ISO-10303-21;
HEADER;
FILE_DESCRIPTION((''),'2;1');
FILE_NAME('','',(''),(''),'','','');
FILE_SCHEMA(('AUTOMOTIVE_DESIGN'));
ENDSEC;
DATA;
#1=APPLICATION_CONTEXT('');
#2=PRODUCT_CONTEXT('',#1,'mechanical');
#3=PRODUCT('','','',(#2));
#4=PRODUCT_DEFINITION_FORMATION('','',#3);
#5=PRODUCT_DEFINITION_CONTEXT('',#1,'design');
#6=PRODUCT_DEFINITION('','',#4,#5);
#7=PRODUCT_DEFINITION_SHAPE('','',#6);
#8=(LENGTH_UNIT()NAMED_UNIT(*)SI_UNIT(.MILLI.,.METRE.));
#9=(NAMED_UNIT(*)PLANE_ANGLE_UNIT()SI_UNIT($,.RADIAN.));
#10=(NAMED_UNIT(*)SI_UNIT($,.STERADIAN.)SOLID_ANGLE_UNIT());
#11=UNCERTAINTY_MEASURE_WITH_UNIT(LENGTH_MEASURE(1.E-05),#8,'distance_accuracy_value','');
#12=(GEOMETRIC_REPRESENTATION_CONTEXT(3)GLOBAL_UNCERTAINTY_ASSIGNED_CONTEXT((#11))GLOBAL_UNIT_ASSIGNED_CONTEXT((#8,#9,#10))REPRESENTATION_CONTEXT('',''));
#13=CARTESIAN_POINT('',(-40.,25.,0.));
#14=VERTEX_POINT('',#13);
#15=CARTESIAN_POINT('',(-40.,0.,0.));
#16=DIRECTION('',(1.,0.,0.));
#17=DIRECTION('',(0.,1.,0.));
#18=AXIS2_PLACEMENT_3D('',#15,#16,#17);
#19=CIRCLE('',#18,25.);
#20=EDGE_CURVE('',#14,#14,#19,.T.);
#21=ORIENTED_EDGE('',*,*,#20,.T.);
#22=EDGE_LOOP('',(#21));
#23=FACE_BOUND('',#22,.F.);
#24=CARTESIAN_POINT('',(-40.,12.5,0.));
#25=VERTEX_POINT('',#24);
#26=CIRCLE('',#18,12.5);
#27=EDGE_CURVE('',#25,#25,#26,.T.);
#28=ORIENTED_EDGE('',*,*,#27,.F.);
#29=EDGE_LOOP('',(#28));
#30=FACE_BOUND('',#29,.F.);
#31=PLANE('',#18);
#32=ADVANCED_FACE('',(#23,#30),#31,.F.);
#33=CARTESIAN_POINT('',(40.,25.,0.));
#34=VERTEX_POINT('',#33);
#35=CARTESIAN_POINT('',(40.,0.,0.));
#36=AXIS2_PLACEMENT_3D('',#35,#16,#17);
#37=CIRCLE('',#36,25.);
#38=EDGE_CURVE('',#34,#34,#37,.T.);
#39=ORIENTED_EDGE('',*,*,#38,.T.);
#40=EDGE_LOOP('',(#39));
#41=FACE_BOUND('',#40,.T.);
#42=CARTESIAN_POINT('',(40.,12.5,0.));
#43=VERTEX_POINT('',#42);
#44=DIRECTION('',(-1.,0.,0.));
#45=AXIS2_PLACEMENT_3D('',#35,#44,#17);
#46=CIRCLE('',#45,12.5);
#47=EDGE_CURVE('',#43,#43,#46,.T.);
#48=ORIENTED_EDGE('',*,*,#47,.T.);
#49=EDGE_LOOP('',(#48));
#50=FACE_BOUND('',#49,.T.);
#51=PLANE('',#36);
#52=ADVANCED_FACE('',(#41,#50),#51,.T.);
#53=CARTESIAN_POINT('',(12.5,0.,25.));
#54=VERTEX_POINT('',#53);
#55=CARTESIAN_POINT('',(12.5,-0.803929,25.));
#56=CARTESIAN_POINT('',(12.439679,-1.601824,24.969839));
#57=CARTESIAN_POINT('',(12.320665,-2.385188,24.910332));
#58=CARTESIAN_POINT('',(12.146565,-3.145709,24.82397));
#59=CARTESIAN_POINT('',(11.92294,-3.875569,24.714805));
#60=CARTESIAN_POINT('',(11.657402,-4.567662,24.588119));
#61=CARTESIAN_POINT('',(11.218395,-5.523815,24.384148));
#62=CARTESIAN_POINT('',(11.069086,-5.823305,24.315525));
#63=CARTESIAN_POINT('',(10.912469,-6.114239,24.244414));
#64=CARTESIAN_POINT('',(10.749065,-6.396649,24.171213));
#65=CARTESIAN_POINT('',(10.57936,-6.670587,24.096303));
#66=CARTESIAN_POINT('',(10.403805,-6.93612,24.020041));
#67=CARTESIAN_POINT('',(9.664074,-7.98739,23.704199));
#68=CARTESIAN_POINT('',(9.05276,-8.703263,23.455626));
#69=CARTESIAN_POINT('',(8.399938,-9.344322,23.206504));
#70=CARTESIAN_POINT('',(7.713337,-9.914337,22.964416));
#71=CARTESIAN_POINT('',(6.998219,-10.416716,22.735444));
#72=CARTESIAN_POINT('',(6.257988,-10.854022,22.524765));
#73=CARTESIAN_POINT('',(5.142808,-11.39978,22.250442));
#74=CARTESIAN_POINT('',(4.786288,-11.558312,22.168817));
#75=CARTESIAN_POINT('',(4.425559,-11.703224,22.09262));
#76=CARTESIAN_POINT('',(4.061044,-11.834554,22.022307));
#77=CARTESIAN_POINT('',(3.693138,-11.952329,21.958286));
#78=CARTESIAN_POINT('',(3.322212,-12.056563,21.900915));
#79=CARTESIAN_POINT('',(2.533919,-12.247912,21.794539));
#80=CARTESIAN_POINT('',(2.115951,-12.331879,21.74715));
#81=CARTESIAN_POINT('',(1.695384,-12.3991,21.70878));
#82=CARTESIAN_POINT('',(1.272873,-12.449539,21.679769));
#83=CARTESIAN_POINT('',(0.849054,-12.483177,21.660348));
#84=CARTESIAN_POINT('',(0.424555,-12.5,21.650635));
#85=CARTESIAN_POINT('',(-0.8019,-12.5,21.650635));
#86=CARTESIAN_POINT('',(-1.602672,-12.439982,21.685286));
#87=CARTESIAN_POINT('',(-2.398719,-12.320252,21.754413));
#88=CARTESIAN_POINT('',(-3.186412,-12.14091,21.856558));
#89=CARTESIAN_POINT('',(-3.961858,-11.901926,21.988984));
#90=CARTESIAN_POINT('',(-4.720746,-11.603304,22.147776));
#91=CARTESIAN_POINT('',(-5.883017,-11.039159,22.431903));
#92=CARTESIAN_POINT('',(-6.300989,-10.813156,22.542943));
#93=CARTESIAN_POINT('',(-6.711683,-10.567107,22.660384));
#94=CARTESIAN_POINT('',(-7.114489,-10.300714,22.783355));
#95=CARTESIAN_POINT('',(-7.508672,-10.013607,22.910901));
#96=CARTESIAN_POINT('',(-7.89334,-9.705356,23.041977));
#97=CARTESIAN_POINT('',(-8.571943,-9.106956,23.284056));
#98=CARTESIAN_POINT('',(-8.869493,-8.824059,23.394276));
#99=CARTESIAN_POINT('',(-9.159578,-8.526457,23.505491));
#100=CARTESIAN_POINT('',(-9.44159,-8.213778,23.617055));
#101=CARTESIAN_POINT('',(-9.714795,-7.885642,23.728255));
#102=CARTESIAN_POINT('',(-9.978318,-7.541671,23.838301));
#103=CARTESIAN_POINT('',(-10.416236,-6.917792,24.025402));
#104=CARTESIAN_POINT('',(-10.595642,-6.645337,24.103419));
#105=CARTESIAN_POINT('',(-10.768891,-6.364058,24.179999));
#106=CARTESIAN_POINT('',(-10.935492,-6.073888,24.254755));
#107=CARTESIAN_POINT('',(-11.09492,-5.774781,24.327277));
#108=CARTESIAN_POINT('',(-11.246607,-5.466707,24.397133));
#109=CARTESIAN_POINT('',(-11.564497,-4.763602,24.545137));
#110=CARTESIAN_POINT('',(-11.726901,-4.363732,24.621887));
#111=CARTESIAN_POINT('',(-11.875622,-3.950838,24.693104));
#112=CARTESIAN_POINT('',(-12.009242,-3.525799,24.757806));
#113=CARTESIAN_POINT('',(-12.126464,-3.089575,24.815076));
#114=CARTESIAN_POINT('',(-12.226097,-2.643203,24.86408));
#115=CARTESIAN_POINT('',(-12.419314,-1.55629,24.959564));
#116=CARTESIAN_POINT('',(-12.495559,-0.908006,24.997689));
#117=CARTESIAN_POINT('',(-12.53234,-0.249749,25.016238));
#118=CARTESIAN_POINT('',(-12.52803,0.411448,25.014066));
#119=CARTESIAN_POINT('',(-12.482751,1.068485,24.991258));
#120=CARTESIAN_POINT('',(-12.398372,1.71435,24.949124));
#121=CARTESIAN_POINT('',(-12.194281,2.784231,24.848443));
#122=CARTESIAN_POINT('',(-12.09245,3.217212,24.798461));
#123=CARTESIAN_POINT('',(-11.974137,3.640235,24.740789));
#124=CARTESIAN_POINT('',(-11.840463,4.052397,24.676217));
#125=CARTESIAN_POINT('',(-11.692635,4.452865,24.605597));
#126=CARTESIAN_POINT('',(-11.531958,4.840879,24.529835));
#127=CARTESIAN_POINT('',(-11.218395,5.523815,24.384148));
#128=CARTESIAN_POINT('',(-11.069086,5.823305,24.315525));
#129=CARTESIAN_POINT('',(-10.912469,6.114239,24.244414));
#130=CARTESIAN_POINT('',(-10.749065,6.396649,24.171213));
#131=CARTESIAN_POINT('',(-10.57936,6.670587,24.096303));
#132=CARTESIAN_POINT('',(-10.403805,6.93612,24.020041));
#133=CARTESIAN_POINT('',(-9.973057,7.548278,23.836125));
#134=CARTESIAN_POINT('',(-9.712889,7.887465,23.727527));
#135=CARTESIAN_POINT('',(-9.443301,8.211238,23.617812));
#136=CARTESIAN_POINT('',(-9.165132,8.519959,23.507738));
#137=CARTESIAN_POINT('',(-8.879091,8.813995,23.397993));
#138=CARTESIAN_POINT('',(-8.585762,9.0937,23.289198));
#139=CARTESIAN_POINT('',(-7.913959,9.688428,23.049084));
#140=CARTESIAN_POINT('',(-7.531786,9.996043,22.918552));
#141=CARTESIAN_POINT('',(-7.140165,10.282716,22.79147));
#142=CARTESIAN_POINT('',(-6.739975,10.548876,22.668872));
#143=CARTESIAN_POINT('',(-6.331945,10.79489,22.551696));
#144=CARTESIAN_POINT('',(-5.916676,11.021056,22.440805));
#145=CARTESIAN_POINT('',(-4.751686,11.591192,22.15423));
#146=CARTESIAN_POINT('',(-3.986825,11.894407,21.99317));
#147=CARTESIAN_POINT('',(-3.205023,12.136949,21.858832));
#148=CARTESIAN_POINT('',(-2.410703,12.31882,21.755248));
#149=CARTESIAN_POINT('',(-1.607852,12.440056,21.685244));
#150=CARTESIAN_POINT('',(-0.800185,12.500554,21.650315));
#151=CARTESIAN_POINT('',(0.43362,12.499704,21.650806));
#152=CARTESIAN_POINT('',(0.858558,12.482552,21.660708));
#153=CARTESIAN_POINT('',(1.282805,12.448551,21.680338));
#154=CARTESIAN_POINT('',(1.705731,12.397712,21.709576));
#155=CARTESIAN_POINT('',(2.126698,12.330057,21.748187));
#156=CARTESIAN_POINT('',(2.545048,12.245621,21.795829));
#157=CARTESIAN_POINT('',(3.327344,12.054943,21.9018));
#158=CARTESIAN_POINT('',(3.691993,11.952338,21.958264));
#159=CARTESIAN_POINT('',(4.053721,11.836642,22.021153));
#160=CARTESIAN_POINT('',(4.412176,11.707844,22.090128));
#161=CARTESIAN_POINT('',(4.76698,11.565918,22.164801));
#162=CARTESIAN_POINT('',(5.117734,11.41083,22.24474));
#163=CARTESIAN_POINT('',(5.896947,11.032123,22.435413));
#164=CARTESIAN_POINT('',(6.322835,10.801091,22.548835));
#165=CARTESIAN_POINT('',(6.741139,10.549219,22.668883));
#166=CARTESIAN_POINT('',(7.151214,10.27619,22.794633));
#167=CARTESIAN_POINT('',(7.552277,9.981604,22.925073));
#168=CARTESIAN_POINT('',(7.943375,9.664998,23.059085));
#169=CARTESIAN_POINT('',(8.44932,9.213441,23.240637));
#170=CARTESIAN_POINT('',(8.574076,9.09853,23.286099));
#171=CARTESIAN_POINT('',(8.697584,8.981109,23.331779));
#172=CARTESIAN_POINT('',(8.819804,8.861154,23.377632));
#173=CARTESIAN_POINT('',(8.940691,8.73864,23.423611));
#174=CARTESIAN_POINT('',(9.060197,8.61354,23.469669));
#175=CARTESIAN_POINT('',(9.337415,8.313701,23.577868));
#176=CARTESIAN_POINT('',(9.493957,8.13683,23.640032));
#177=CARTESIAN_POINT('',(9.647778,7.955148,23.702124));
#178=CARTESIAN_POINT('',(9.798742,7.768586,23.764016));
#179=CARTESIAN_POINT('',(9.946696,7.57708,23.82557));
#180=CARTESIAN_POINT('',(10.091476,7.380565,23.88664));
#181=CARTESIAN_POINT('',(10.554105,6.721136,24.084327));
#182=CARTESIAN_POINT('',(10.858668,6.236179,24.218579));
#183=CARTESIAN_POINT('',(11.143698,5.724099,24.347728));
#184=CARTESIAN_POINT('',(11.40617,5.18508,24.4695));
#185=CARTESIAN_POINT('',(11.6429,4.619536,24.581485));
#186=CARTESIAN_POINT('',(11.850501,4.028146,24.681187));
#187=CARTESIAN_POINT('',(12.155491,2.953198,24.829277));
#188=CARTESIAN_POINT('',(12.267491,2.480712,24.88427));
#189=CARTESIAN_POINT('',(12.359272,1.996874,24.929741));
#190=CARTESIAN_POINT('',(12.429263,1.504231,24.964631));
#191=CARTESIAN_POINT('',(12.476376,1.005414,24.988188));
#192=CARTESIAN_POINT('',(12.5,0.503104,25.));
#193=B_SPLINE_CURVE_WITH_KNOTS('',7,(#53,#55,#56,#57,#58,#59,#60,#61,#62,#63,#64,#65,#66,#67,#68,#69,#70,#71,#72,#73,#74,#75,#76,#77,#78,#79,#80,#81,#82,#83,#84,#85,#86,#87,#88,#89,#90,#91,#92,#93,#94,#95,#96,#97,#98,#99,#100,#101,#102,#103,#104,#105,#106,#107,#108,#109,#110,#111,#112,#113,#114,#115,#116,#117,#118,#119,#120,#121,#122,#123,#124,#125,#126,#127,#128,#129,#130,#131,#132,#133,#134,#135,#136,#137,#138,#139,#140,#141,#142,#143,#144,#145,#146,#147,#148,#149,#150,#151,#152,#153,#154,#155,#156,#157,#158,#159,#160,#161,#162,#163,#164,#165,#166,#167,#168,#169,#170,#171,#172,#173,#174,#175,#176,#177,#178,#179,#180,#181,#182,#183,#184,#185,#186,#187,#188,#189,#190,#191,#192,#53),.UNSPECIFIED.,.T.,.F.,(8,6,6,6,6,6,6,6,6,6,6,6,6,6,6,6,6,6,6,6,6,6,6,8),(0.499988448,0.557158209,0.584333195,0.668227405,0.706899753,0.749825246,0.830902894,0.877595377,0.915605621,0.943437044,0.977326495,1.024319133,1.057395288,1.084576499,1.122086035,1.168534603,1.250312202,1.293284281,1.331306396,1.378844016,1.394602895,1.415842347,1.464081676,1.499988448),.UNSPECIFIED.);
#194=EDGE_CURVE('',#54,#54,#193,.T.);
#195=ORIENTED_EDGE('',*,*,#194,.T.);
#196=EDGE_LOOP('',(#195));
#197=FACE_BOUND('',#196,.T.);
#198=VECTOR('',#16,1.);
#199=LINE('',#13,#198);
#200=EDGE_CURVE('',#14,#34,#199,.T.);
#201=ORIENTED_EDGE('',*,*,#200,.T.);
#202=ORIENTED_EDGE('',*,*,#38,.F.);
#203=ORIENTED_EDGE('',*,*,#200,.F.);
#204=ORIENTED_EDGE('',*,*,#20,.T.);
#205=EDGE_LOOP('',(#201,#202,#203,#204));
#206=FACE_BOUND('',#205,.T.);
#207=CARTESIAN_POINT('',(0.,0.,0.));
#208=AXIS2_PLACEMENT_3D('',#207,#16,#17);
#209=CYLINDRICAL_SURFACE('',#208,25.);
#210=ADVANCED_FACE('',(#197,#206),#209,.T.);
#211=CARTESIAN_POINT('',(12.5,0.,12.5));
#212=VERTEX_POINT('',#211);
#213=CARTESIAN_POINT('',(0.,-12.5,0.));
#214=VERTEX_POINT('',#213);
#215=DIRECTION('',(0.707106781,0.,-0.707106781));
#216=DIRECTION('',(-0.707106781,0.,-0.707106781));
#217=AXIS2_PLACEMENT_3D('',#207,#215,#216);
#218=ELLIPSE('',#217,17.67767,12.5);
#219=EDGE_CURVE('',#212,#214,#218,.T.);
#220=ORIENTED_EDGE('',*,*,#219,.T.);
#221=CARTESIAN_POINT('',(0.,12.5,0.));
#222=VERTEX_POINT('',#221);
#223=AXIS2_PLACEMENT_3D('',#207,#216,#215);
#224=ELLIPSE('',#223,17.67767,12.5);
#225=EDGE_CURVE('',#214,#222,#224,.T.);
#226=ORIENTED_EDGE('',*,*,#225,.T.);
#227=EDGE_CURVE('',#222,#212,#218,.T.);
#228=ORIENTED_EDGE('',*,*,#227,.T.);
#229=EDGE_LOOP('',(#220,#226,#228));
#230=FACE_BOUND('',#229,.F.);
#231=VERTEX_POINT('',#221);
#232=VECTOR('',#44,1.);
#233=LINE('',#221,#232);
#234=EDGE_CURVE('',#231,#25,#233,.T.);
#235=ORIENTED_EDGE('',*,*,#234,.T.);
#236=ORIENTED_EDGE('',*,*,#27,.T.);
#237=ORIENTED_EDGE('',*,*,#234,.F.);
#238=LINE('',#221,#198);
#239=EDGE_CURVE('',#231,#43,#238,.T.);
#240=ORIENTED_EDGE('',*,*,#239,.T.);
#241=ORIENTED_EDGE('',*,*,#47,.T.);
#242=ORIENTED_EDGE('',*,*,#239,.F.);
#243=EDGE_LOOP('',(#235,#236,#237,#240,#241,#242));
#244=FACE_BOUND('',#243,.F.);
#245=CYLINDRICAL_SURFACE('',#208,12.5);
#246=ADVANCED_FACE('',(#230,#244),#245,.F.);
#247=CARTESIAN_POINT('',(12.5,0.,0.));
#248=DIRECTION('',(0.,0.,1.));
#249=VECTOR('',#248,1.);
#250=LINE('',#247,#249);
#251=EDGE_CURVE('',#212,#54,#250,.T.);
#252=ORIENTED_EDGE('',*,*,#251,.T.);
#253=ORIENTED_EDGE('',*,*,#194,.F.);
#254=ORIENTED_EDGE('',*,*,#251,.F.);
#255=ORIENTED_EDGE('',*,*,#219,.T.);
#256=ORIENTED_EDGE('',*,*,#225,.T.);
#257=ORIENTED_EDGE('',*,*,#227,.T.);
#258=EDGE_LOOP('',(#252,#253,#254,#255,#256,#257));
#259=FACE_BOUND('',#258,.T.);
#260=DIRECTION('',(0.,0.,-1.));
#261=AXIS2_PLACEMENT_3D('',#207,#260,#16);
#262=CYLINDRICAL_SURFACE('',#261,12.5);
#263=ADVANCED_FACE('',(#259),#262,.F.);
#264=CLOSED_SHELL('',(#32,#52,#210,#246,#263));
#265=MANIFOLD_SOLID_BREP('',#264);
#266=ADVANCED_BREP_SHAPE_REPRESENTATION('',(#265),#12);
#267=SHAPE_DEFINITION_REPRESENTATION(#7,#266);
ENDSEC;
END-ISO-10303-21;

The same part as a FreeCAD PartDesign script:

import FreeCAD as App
import Part
import Sketcher
from FreeCAD import Vector

doc = App.newDocument("Part")
body = doc.addObject("PartDesign::Body", "Body")

sketch1 = body.newObject("Sketcher::SketchObject", "Sketch")
sketch1.AttachmentSupport = (doc.getObject("YZ_Plane"), [""])
sketch1.MapMode = "FlatFace"
sketch1.addGeometry(Part.Circle(Vector(0, 0, 0), Vector(0, 0, 1), 25), False)
sketch1.addConstraint(Sketcher.Constraint("Coincident", 0, 3, -1, 1))
sketch1.addConstraint(Sketcher.Constraint("Diameter", 0, 50.0))
pad1 = body.newObject("PartDesign::Pad", "Pad")
pad1.Profile = sketch1
pad1.Length = 80
pad1.Midplane = True

sketch2 = body.newObject("Sketcher::SketchObject", "Sketch001")
sketch2.AttachmentSupport = (doc.getObject("XY_Plane"), [""])
sketch2.MapMode = "FlatFace"
sketch2.addGeometry(Part.Circle(Vector(0, 0, 0), Vector(0, 0, 1), 12.5), False)
sketch2.addConstraint(Sketcher.Constraint("Coincident", 0, 3, -1, 1))
sketch2.addConstraint(Sketcher.Constraint("Diameter", 0, 25.0))
pocket1 = body.newObject("PartDesign::Pocket", "Pocket")
pocket1.Profile = sketch2
pocket1.Length = 25
pocket1.Reversed = True

sketch3 = body.newObject("Sketcher::SketchObject", "Sketch002")
sketch3.AttachmentSupport = (doc.getObject("YZ_Plane"), [""])
sketch3.MapMode = "FlatFace"
sketch3.addGeometry(Part.Circle(Vector(0, 0, 0), Vector(0, 0, 1), 12.5), False)
sketch3.addConstraint(Sketcher.Constraint("Coincident", 0, 3, -1, 1))
sketch3.addConstraint(Sketcher.Constraint("Diameter", 0, 25.0))
pocket2 = body.newObject("PartDesign::Pocket", "Pocket001")
pocket2.Profile = sketch3
pocket2.Type = "ThroughAll"
pocket2.Midplane = True

doc.recompute()
